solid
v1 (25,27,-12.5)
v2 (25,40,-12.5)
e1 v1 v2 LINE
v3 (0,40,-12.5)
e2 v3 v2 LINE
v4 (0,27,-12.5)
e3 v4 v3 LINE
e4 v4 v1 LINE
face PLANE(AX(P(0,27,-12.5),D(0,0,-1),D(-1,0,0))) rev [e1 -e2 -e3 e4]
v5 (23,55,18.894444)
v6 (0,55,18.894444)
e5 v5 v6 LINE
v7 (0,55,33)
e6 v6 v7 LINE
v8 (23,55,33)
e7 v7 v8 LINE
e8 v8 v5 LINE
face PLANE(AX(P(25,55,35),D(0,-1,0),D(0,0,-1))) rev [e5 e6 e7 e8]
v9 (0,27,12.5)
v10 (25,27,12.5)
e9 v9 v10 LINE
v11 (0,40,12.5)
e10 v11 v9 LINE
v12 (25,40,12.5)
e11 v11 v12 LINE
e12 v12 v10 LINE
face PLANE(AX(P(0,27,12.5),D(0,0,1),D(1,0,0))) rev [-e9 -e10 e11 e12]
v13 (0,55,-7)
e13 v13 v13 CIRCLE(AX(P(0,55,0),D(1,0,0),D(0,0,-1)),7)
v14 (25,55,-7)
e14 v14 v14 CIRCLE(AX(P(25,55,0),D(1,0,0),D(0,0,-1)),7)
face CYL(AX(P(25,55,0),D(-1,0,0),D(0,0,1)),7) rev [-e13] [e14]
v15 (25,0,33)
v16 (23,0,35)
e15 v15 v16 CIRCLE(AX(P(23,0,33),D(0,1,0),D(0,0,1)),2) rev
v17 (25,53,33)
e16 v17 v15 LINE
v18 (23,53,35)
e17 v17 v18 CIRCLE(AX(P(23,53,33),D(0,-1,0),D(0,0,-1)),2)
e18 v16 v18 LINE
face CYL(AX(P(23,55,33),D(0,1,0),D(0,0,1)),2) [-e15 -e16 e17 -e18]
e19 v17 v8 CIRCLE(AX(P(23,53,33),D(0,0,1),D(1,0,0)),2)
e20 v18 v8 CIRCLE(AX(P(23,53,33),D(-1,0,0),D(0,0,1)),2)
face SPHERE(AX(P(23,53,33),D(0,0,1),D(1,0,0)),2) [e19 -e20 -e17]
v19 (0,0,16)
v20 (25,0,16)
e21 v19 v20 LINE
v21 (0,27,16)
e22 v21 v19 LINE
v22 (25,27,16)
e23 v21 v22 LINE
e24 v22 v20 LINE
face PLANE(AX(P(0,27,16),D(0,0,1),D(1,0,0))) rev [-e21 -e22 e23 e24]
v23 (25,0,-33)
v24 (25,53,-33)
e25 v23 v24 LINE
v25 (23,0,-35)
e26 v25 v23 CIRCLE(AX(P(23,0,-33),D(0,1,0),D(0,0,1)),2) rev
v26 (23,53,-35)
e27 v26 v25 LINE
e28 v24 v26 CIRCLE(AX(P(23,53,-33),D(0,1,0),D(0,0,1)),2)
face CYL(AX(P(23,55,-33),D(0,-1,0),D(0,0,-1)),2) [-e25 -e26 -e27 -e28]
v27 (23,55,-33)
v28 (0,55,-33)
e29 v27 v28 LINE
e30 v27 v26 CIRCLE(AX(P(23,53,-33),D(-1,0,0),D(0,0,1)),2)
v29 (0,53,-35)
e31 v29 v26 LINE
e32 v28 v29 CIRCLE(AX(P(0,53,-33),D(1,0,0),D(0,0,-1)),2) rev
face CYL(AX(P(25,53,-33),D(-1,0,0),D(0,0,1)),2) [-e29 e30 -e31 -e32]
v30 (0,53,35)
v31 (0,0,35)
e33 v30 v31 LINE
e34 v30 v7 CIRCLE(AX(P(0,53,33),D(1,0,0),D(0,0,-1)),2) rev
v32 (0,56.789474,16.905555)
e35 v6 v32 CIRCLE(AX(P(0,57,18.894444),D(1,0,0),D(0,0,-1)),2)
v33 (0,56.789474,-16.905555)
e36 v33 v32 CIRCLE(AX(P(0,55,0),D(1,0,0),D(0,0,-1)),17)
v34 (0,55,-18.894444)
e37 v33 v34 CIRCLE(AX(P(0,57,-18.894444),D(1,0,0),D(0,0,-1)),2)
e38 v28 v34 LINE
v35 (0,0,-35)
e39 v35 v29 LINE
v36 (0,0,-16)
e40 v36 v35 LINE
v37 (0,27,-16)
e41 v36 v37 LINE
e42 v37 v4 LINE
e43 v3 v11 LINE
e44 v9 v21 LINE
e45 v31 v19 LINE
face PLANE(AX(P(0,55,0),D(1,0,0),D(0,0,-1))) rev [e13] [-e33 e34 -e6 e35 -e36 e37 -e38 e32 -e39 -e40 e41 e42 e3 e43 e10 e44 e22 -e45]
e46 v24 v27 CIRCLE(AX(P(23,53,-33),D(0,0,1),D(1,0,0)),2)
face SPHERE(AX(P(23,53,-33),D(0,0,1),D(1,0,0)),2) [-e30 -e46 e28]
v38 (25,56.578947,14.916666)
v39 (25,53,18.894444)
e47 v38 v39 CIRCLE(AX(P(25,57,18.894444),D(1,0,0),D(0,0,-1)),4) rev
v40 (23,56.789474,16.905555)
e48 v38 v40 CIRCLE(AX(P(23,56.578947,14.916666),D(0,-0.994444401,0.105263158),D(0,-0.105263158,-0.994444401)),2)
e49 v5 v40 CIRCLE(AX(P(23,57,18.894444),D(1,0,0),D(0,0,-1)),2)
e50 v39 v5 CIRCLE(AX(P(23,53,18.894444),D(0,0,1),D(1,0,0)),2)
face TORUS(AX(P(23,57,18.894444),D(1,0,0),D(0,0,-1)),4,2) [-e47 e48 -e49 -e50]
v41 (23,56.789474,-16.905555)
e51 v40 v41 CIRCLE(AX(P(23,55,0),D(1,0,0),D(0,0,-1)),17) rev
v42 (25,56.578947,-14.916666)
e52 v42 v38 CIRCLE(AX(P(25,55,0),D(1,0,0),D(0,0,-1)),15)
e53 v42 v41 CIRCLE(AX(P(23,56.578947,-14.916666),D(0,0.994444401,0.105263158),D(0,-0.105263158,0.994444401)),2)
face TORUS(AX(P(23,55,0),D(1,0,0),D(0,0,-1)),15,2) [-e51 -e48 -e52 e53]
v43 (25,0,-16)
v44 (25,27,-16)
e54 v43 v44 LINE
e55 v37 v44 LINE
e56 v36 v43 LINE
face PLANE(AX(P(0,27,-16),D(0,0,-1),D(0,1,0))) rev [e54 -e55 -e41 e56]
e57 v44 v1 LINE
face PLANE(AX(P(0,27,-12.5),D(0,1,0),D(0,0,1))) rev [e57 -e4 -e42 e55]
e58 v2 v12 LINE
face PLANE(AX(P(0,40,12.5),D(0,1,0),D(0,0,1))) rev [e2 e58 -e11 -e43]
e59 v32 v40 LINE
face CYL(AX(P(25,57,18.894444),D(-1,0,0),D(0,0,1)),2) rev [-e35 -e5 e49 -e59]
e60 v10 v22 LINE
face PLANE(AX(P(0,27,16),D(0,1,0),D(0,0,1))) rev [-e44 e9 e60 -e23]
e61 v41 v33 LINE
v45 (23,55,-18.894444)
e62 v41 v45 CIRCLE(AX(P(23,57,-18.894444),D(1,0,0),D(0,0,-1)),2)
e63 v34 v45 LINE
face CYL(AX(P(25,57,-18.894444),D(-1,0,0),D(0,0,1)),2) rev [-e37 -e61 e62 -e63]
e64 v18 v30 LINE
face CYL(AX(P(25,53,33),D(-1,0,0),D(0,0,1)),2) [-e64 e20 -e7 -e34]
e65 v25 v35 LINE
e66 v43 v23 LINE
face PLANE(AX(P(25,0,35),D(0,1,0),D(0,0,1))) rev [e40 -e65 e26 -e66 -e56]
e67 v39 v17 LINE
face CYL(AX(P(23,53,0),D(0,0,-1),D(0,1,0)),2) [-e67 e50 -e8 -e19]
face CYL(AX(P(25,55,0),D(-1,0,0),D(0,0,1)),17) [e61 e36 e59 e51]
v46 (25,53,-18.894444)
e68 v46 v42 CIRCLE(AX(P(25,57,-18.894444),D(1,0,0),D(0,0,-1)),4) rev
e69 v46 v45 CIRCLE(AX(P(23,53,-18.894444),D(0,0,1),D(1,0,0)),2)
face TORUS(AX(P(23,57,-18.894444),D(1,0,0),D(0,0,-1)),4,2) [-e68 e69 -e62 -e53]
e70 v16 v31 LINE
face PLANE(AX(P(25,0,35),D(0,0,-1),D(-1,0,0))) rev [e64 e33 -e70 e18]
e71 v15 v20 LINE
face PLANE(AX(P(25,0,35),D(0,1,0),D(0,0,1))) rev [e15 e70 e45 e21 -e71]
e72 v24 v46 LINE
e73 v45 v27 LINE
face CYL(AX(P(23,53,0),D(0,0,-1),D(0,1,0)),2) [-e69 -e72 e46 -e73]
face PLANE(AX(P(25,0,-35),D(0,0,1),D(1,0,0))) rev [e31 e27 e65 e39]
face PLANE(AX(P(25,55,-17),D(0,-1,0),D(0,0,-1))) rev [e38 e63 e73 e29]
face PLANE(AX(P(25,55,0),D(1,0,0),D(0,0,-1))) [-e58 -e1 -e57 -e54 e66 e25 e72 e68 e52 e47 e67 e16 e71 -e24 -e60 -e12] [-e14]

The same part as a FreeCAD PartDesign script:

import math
import FreeCAD as App
import Part
import Sketcher
from FreeCAD import Vector
Q = App.Units.Quantity


def edges_at(feature, points):
    """Names of the edges that pass closest to the given points."""
    edges = feature.Shape.Edges
    near = lambda p: min(range(len(edges)), key=lambda i: edges[i].distToShape(Part.Vertex(*p))[0])
    return sorted({f"Edge{near(p) + 1}" for p in points})


def add_polygon(sketch, points):
    """Adds a closed chain of lines whose ends are joined by coincident constraints."""
    first, n = sketch.GeometryCount, len(points)
    for a, b in zip(points, points[1:] + points[:1]):
        sketch.addGeometry(Part.LineSegment(App.Vector(*a, 0), App.Vector(*b, 0)), False)
    for i in range(n):
        sketch.addConstraint(Sketcher.Constraint("Coincident", first + i, 2, first + (i + 1) % n, 1))

doc = App.newDocument("Part")
body = doc.addObject("PartDesign::Body", "Body")

sketch1 = body.newObject("Sketcher::SketchObject", "Sketch")
sketch1.AttachmentSupport = (doc.getObject("YZ_Plane"), [""])
sketch1.MapMode = "FlatFace"
sketch1.addGeometry([
    Part.LineSegment(Vector(55, -35, 0), Vector(55, -17, 0)),
    Part.ArcOfCircle(Part.Circle(Vector(55, 0, 0), Vector(0, 0, 1), 17), math.radians(-90), math.radians(90)),
    Part.LineSegment(Vector(55, 17, 0), Vector(55, 35, 0)),
    Part.LineSegment(Vector(55, 35, 0), Vector(0, 35, 0)),
    Part.LineSegment(Vector(0, 35, 0), Vector(0, -35, 0)),
    Part.LineSegment(Vector(0, -35, 0), Vector(55, -35, 0)),
    Part.Circle(Vector(55, 0, 0), Vector(0, 0, 1), 7),
], False)
sketch1.addConstraint([
    Sketcher.Constraint("Coincident", 0, 2, 1, 1),
    Sketcher.Constraint("Coincident", 1, 2, 2, 1),
    Sketcher.Constraint("Coincident", 2, 2, 3, 1),
    Sketcher.Constraint("Coincident", 3, 2, 4, 1),
    Sketcher.Constraint("Coincident", 4, 2, 5, 1),
    Sketcher.Constraint("Coincident", 5, 2, 0, 1),
    Sketcher.Constraint("Vertical", 0),
    Sketcher.Constraint("Vertical", 2),
    Sketcher.Constraint("Horizontal", 3),
    Sketcher.Constraint("Vertical", 4),
    Sketcher.Constraint("Horizontal", 5),
    Sketcher.Constraint("Coincident", 6, 3, 1, 3),
    Sketcher.Constraint("Symmetric", 3, 2, 4, 2, -1, 1),
    Sketcher.Constraint("Symmetric", 0, 2, 1, 2, -1),
    Sketcher.Constraint("Vertical", 6, 3, 0, 2),
    Sketcher.Constraint("Diameter", 6, Q("14 mm")),
    Sketcher.Constraint("Radius", 1, Q("17 mm")),
    Sketcher.Constraint("DistanceX", 3, 2, 3, 1, Q("55 mm")),
    Sketcher.Constraint("DistanceY", 0, 1, 0, 2, Q("18 mm")),
])
pad1 = body.newObject("PartDesign::Pad", "Pad")
pad1.Profile = sketch1
pad1.Length = 25

sketch2 = body.newObject("Sketcher::SketchObject", "Sketch001")
sketch2.AttachmentSupport = (doc.getObject("YZ_Plane"), [""])
sketch2.MapMode = "FlatFace"
sketch2.AttachmentOffset = App.Placement(Vector(0, 0, 25), App.Rotation())
add_polygon(sketch2, [(27, 12.5), (27, 16), (0, 16), (0, -16), (27, -16), (27, -12.5), (40, -12.5), (40, 12.5)])
sketch2.addConstraint([
    Sketcher.Constraint("Vertical", 0),
    Sketcher.Constraint("Horizontal", 1),
    Sketcher.Constraint("Vertical", 2),
    Sketcher.Constraint("Horizontal", 3),
    Sketcher.Constraint("Vertical", 4),
    Sketcher.Constraint("Horizontal", 5),
    Sketcher.Constraint("Vertical", 6),
    Sketcher.Constraint("Horizontal", 7),
    Sketcher.Constraint("Symmetric", 1, 2, 2, 2, -1, 1),
    Sketcher.Constraint("Symmetric", 4, 2, 7, 2, -1),
    Sketcher.Constraint("DistanceX", 1, 2, 1, 1, Q("27 mm")),
    Sketcher.Constraint("DistanceX", 5, 1, 5, 2, Q("13 mm")),
    Sketcher.Constraint("DistanceY", 2, 2, 2, 1, Q("32 mm")),
    Sketcher.Constraint("DistanceY", 6, 1, 6, 2, Q("25 mm")),
])
pocket1 = body.newObject("PartDesign::Pocket", "Pocket")
pocket1.Profile = sketch2
pocket1.Type = "ThroughAll"
doc.recompute()

fillet = body.newObject("PartDesign::Fillet", "Fillet")
fillet.Base = (pocket1, edges_at(pocket1, [
    (12.5, 55, 35),
    (12.5, 55, 17),
    (12.5, 55, -17),
    (12.5, 55, -35),
]))
fillet.Radius = 2
doc.recompute()

fillet2 = body.newObject("PartDesign::Fillet", "Fillet001")
fillet2.Base = (fillet, edges_at(fillet, [
    (25, 26.5, -35),
    (25, 55, -25.947),
    (25, 72, 0),
    (25, 55, 25.947),
    (25, 26.5, 35),
    (25, 54.414, 34.414),
    (25, 54.414, -34.414),
    (25, 55.513, -17.557),
    (25, 55.513, 17.557),
]))
fillet2.Radius = 2

doc.recompute()
